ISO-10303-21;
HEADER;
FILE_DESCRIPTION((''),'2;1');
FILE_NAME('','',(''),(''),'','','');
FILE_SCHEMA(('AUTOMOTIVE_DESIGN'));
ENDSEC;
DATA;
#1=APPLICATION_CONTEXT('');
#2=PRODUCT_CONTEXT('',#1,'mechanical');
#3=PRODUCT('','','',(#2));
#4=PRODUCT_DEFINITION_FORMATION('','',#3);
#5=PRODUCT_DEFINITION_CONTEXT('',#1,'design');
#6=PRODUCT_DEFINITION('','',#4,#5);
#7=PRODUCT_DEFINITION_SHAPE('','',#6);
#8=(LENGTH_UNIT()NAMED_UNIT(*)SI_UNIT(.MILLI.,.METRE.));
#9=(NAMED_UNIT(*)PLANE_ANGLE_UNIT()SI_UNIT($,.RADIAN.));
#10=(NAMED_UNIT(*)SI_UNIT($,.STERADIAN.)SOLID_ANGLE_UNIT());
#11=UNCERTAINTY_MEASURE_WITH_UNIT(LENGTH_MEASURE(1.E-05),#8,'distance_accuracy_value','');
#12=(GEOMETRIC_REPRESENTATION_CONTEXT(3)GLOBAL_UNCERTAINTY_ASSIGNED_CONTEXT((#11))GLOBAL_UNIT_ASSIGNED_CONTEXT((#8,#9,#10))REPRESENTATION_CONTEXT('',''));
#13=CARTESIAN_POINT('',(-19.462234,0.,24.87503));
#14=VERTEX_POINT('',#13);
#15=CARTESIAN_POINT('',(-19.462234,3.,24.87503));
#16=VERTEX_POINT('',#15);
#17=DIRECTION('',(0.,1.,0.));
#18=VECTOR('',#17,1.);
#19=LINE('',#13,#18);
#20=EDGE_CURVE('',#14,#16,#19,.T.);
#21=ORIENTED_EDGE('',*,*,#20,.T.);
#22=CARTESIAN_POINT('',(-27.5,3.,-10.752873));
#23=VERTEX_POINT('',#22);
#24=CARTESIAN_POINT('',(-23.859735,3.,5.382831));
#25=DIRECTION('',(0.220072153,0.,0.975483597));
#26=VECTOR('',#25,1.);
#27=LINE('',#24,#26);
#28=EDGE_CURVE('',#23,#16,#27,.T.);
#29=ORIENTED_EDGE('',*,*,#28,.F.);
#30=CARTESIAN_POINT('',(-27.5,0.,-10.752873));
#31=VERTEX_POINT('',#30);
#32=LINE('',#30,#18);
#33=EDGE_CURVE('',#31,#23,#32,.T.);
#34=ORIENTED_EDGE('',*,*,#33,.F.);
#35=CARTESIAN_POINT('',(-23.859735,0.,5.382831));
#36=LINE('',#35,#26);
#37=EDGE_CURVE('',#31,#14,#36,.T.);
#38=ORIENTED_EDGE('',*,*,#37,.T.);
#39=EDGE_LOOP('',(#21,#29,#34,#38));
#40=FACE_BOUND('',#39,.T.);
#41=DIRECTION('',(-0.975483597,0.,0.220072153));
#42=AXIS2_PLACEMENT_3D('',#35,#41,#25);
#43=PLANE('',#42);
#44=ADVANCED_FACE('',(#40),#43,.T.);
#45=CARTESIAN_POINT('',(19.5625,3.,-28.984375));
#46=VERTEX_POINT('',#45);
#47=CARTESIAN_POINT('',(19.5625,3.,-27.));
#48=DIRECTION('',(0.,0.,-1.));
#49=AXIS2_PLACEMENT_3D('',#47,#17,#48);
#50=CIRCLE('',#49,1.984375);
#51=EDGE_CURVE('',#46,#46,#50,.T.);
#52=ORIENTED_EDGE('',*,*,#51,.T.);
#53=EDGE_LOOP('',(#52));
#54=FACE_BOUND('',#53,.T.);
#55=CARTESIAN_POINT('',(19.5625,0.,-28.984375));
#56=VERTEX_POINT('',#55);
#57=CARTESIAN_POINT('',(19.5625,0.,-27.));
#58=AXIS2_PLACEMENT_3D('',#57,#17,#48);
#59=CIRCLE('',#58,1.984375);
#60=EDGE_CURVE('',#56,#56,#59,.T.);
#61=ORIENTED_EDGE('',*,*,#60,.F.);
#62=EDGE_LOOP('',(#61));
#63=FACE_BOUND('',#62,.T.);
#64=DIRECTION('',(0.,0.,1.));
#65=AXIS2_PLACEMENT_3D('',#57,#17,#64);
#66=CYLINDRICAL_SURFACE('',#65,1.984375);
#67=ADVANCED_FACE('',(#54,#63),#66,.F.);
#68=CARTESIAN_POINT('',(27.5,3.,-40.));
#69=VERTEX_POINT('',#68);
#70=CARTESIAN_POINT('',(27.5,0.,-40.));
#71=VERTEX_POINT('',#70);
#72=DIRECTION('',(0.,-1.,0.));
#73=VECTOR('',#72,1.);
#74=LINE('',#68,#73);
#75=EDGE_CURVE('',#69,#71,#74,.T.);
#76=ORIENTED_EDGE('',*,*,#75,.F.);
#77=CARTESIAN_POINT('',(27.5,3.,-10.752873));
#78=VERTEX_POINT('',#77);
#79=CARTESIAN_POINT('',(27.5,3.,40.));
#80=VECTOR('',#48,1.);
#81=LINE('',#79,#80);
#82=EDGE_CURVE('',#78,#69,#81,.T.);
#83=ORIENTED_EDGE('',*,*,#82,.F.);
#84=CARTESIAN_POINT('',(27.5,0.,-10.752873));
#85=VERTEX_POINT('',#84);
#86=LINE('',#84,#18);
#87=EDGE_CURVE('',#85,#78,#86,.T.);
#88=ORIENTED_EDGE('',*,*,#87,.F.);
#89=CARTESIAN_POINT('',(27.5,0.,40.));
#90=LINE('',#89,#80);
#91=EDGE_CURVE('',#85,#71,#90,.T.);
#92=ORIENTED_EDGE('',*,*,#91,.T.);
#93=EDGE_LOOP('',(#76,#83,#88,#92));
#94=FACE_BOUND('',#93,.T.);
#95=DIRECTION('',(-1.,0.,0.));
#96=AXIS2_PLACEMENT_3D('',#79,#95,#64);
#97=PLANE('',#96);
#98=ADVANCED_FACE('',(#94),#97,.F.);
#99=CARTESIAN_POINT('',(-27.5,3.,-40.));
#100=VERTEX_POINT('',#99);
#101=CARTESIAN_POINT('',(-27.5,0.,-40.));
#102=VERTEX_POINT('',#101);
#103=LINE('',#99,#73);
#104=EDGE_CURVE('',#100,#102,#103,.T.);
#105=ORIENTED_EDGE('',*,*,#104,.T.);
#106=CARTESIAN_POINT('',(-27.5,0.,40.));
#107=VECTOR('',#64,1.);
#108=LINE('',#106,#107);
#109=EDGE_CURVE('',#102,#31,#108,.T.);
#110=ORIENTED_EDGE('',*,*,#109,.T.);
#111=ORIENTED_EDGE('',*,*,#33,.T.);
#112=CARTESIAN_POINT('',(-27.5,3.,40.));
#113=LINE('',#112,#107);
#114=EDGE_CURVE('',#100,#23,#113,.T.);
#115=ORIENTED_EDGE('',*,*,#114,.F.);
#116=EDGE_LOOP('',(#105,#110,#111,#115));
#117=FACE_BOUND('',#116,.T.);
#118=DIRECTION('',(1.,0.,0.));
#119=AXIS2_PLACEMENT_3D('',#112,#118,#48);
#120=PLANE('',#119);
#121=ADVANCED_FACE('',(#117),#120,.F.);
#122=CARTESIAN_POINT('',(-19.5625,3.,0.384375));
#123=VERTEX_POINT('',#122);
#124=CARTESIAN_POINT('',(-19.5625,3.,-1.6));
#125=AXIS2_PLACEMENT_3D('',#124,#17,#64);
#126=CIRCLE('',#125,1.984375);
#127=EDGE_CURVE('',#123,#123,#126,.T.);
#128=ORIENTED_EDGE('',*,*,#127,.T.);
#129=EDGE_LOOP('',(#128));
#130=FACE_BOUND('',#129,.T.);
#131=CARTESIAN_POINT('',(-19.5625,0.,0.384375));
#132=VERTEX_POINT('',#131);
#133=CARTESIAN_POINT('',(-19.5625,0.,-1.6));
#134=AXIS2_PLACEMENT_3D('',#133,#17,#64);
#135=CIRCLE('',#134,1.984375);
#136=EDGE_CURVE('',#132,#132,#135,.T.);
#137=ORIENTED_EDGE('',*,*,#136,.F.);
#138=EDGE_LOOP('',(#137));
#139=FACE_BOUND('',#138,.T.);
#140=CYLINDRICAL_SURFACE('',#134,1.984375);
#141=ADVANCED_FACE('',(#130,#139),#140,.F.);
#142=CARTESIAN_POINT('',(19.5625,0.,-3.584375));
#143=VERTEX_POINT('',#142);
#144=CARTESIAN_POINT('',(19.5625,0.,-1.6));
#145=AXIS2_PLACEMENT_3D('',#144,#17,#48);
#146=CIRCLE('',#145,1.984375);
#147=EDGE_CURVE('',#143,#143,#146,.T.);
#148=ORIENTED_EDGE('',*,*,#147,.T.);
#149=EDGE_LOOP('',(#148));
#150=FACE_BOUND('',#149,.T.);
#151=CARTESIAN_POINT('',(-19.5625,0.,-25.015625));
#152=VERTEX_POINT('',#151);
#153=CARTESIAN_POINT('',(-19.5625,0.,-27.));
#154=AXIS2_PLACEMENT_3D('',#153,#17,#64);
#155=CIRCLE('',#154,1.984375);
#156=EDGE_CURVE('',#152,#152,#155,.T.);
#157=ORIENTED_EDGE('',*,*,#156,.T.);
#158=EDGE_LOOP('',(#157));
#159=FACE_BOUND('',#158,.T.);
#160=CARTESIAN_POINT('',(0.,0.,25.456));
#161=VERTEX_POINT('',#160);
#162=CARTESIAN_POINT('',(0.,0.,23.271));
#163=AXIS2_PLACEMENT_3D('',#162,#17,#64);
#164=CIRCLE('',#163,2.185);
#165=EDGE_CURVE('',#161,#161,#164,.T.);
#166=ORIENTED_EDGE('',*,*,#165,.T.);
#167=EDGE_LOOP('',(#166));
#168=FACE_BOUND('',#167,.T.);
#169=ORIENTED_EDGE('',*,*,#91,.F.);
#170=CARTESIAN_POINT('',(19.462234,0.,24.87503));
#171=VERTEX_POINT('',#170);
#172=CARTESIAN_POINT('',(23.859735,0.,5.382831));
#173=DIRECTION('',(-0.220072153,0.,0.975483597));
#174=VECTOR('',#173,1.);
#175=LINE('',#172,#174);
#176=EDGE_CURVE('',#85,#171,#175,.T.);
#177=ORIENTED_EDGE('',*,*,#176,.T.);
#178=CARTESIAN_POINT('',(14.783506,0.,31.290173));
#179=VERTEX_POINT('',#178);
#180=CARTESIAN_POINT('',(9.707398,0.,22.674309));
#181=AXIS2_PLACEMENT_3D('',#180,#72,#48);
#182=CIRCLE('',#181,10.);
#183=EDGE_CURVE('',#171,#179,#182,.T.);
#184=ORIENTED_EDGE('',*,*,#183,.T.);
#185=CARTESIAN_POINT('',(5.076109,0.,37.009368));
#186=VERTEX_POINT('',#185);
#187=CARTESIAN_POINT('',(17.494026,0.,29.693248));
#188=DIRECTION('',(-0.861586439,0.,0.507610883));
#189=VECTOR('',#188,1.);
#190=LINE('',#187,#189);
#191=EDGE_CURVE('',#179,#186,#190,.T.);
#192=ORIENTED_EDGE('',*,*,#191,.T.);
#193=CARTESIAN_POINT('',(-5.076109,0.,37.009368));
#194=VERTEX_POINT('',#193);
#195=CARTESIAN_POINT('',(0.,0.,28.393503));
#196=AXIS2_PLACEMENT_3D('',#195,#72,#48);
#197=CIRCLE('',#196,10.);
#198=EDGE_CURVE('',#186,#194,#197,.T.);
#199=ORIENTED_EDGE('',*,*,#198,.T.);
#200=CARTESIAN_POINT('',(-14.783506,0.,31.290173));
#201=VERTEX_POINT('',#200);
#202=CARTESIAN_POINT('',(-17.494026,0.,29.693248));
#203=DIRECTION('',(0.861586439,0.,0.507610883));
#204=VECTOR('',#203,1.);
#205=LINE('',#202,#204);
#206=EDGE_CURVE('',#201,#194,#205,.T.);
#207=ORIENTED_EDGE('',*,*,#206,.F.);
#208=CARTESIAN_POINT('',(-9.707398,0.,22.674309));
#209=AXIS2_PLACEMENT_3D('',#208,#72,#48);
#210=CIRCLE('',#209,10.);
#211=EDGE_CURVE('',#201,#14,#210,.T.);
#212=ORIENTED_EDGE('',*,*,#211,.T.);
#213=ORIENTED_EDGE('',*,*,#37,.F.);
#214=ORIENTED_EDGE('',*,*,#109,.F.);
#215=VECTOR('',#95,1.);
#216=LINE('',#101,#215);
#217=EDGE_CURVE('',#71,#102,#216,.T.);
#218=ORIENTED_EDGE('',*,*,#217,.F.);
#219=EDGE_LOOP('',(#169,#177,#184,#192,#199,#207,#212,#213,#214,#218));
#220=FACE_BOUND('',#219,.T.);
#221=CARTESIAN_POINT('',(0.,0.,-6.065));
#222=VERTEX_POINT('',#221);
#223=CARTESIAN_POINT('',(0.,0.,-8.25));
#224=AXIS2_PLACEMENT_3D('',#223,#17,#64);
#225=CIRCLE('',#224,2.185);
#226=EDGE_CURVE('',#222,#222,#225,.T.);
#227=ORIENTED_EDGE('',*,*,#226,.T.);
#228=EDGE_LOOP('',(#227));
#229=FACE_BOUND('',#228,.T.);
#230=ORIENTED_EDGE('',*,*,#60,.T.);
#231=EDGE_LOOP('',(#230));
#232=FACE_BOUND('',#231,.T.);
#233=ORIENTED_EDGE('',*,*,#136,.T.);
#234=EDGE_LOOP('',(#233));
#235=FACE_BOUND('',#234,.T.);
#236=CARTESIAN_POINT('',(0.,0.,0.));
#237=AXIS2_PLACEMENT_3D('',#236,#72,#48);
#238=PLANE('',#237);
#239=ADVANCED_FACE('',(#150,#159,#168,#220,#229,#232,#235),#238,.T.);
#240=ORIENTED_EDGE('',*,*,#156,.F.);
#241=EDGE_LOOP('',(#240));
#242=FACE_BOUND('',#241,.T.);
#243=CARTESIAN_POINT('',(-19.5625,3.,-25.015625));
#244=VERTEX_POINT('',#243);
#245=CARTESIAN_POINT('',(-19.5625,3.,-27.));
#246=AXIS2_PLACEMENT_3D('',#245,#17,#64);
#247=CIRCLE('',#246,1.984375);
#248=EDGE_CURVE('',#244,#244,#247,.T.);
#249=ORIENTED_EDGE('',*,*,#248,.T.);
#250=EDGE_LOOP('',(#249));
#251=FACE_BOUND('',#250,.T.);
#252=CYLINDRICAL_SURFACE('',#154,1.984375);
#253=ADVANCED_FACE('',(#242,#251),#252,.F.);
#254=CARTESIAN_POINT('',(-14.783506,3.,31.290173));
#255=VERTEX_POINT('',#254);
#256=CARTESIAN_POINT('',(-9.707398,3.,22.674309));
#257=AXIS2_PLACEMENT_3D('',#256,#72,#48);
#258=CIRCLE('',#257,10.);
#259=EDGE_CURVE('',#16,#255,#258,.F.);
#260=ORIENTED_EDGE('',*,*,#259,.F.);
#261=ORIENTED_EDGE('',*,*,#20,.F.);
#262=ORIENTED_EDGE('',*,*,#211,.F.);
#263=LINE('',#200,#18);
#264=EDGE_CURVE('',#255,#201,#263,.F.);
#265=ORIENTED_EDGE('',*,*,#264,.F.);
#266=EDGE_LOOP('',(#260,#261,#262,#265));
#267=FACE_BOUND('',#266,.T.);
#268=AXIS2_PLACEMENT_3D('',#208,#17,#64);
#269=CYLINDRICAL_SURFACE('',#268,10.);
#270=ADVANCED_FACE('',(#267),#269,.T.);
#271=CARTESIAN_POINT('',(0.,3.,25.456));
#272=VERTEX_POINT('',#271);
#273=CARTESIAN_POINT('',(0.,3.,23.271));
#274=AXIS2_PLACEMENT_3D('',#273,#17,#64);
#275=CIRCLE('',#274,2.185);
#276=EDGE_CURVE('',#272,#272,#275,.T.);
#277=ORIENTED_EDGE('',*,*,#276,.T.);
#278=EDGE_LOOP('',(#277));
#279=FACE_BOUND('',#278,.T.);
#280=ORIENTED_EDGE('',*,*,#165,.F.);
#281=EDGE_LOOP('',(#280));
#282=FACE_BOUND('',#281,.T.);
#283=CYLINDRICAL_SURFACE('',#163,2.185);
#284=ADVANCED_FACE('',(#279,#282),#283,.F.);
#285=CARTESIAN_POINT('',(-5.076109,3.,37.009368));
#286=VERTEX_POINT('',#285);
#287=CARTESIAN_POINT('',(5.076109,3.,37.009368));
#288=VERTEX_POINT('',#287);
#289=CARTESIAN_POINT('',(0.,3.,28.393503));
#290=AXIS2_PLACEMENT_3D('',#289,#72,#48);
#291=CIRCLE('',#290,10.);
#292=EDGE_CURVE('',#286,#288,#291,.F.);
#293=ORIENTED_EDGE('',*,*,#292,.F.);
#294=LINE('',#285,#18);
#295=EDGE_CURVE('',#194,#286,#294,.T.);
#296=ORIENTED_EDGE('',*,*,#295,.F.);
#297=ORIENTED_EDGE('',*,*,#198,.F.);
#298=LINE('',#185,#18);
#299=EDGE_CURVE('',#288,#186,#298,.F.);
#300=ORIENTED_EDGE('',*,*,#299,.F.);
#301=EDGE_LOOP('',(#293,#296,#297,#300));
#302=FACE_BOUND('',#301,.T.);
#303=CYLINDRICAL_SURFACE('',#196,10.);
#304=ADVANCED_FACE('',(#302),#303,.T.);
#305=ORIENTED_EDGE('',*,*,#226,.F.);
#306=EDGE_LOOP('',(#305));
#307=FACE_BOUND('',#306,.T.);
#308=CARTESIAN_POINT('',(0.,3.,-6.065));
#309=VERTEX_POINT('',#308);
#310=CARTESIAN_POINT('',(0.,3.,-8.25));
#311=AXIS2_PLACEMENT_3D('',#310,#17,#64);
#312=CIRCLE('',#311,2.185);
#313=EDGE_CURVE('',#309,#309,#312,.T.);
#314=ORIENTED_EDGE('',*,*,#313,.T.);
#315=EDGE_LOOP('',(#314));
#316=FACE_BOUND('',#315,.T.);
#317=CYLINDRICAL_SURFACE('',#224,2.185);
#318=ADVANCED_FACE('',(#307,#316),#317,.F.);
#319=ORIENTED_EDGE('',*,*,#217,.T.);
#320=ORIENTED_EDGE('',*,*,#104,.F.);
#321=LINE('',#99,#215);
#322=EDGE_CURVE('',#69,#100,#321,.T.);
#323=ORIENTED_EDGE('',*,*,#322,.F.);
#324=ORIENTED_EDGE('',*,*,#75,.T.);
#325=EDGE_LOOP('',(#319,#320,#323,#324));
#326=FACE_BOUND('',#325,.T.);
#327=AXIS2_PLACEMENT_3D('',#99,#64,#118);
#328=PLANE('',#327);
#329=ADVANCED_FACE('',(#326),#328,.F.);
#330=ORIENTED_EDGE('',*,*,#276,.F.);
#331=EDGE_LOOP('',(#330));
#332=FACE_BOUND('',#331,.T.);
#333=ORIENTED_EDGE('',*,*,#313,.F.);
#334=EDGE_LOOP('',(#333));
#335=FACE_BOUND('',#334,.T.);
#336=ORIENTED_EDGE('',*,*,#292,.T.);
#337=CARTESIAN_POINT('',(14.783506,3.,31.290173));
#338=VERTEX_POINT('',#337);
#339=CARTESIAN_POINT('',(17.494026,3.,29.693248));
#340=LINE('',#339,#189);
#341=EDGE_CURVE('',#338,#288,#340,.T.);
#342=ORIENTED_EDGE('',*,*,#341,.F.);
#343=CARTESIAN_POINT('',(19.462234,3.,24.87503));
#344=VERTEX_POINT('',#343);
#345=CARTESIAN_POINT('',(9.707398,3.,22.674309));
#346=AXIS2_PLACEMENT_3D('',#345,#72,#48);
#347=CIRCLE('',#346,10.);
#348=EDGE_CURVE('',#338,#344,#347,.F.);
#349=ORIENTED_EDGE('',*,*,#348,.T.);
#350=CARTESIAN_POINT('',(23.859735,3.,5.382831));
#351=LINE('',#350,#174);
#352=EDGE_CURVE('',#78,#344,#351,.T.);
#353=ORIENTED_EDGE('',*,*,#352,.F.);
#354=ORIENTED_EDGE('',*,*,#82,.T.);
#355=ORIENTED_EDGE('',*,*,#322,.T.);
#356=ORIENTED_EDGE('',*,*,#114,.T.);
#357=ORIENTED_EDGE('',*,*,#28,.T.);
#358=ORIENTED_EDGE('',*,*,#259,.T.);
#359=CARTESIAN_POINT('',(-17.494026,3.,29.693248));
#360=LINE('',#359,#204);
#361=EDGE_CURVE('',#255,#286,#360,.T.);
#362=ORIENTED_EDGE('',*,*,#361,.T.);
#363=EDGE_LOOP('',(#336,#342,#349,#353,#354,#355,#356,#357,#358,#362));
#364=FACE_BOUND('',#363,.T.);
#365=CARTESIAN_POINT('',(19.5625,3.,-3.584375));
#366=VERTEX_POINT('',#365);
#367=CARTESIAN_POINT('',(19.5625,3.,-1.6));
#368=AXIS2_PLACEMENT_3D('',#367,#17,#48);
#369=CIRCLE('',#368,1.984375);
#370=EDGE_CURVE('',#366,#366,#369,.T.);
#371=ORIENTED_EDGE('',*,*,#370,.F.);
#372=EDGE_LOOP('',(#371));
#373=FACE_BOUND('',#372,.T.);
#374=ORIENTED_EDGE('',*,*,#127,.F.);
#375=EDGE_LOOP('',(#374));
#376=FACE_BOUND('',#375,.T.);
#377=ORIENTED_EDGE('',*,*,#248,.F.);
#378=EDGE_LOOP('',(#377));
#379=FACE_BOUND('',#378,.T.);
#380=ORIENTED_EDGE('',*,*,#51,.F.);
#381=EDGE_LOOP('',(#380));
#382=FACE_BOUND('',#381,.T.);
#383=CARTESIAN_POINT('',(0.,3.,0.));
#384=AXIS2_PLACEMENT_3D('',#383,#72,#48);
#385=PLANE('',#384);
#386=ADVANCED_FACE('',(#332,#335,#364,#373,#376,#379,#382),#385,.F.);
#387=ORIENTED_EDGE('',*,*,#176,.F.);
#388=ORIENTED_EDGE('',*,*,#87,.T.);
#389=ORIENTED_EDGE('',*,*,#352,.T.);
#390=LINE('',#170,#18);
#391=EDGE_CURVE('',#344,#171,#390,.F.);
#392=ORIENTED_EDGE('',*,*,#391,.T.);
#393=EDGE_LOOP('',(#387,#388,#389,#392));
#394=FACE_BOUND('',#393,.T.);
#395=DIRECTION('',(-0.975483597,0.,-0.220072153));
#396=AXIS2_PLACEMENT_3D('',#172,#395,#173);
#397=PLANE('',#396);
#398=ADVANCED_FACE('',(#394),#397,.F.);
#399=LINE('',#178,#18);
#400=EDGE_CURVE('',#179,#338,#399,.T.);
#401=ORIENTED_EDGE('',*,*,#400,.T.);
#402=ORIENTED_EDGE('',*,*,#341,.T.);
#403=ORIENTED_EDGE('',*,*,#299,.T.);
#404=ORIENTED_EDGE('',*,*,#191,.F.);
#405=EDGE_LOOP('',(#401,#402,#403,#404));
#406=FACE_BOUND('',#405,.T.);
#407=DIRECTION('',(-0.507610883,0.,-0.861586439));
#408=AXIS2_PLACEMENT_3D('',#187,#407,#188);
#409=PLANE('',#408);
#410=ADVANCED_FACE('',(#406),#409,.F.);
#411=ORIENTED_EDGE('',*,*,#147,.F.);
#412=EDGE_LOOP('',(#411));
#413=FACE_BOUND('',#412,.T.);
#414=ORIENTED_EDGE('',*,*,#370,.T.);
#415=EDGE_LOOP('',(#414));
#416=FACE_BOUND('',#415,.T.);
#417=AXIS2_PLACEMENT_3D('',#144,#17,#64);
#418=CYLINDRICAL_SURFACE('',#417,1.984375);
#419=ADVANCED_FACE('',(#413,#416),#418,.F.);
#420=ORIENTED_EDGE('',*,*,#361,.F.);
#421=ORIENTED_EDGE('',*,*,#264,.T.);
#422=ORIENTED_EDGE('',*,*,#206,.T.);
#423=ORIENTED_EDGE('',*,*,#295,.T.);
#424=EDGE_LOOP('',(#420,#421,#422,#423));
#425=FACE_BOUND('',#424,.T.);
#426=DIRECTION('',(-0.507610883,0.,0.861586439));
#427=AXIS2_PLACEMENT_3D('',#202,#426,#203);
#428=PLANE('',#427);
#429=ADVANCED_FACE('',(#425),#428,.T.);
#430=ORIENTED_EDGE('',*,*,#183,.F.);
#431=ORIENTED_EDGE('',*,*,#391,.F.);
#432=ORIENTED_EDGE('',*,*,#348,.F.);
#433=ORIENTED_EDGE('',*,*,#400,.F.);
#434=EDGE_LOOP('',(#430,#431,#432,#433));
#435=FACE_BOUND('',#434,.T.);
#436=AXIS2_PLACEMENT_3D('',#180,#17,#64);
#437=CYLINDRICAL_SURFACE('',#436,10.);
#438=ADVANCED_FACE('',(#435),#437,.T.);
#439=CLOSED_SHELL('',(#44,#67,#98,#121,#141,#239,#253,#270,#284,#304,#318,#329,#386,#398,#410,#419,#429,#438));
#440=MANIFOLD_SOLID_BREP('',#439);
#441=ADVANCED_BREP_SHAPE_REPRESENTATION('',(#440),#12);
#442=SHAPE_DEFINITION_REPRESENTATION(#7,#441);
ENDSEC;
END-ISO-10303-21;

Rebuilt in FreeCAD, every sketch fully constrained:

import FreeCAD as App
import Part
import Sketcher
Q = App.Units.Quantity


def edges_at(feature, points):
    """Names of the edges that pass closest to the given points."""
    edges = feature.Shape.Edges
    near = lambda p: min(range(len(edges)), key=lambda i: edges[i].distToShape(Part.Vertex(*p))[0])
    return sorted({f"Edge{near(p) + 1}" for p in points})

doc = App.newDocument("Part")
body = doc.addObject("PartDesign::Body", "Body")

# Sketch on XZ plane
sketch1 = body.newObject("Sketcher::SketchObject", "Sketch")
sketch1.AttachmentSupport = (doc.getObject("XZ_Plane"), [""])
sketch1.MapMode = "FlatFace"
sketch1.addGeometry(Part.LineSegment(App.Vector(-28, -40, 0), App.Vector(-28, 40, 0)), False)
sketch1.addGeometry(Part.LineSegment(App.Vector(-28, 40, 0), App.Vector(28, 40, 0)), False)
sketch1.addGeometry(Part.LineSegment(App.Vector(28, 40, 0), App.Vector(28, -40, 0)), False)
sketch1.addGeometry(Part.LineSegment(App.Vector(28, -40, 0), App.Vector(-28, -40, 0)), False)
sketch1.addConstraint(Sketcher.Constraint("Coincident", 0, 2, 1, 1))
sketch1.addConstraint(Sketcher.Constraint("Coincident", 1, 2, 2, 1))
sketch1.addConstraint(Sketcher.Constraint("Coincident", 2, 2, 3, 1))
sketch1.addConstraint(Sketcher.Constraint("Coincident", 3, 2, 0, 1))
sketch1.addConstraint(Sketcher.Constraint("Vertical", 0))
sketch1.addConstraint(Sketcher.Constraint("Horizontal", 1))
sketch1.addConstraint(Sketcher.Constraint("Vertical", 2))
sketch1.addConstraint(Sketcher.Constraint("Horizontal", 3))
sketch1.addConstraint(Sketcher.Constraint("Symmetric", 0, 2, 2, 2, -1, 1))
sketch1.addConstraint(Sketcher.Constraint("DistanceX", 1, 1, 1, 2, Q("55 mm")))
sketch1.addConstraint(Sketcher.Constraint("DistanceY", 0, 1, 0, 2, Q("80 mm")))
pad1 = body.newObject("PartDesign::Pad", "Pad")
pad1.Profile = sketch1
pad1.Length = 3
pad1.Reversed = True

# Sketch on XZ plane
sketch2 = body.newObject("Sketcher::SketchObject", "Sketch001")
sketch2.AttachmentSupport = (doc.getObject("XZ_Plane"), [""])
sketch2.MapMode = "FlatFace"
sketch2.AttachmentOffset = App.Placement(App.Vector(0, 0, -3), App.Rotation())
sketch2.addGeometry(Part.Circle(App.Vector(0, -8.2, 0), App.Vector(0, 0, 1), 2.2), False)
sketch2.addGeometry(Part.Circle(App.Vector(0, 23.3, 0), App.Vector(0, 0, 1), 2.2), False)
sketch2.addGeometry(Part.Circle(App.Vector(-19.6, -27, 0), App.Vector(0, 0, 1), 2), False)
sketch2.addGeometry(Part.Circle(App.Vector(-19.6, -1.6, 0), App.Vector(0, 0, 1), 2), False)
sketch2.addGeometry(Part.Circle(App.Vector(19.6, -27, 0), App.Vector(0, 0, 1), 2), False)
sketch2.addGeometry(Part.Circle(App.Vector(19.6, -1.6, 0), App.Vector(0, 0, 1), 2), False)
sketch2.addConstraint(Sketcher.Constraint("Equal", 0, 1))
sketch2.addConstraint(Sketcher.Constraint("Equal", 2, 3))
sketch2.addConstraint(Sketcher.Constraint("Equal", 3, 4))
sketch2.addConstraint(Sketcher.Constraint("Equal", 4, 5))
sketch2.addConstraint(Sketcher.Constraint("Symmetric", 2, 3, 4, 3, -2))
sketch2.addConstraint(Sketcher.Constraint("Symmetric", 3, 3, 5, 3, -2))
sketch2.addConstraint(Sketcher.Constraint("PointOnObject", 0, 3, -2))
sketch2.addConstraint(Sketcher.Constraint("PointOnObject", 1, 3, -2))
sketch2.addConstraint(Sketcher.Constraint("Vertical", 2, 3, 3, 3))
sketch2.addConstraint(Sketcher.Constraint("Diameter", 0, Q("4.37 mm")))
sketch2.addConstraint(Sketcher.Constraint("DistanceY", 2, 3, -1, 1, Q("27 mm")))
sketch2.addConstraint(Sketcher.Constraint("DistanceY", 3, 3, -1, 1, Q("1.6 mm")))
sketch2.addConstraint(Sketcher.Constraint("Diameter", 2, Q("3.96875 mm")))
sketch2.addConstraint(Sketcher.Constraint("DistanceY", 0, 3, -1, 1, Q("8.25 mm")))
sketch2.addConstraint(Sketcher.Constraint("DistanceY", -1, 1, 1, 3, Q("23.271 mm")))
sketch2.addConstraint(Sketcher.Constraint("DistanceX", 2, 3, 4, 3, Q("39.125 mm")))
pocket1 = body.newObject("PartDesign::Pocket", "Pocket")
pocket1.Profile = sketch2
pocket1.Type = "ThroughAll"
pocket1.Reversed = True

# Sketch on XZ plane
sketch3 = body.newObject("Sketcher::SketchObject", "Sketch002")
sketch3.AttachmentSupport = (doc.getObject("XZ_Plane"), [""])
sketch3.MapMode = "FlatFace"
sketch3.AttachmentOffset = App.Placement(App.Vector(0, 0, -3), App.Rotation())
sketch3.addGeometry(Part.LineSegment(App.Vector(19, 29, 0), App.Vector(0, 40, 0)), False)
sketch3.addGeometry(Part.LineSegment(App.Vector(0, 40, 0), App.Vector(28, 40, 0)), False)
sketch3.addGeometry(Part.LineSegment(App.Vector(28, 40, 0), App.Vector(28, -11, 0)), False)
sketch3.addGeometry(Part.LineSegment(App.Vector(28, -11, 0), App.Vector(19, 29, 0)), False)
sketch3.addConstraint(Sketcher.Constraint("Coincident", 0, 2, 1, 1))
sketch3.addConstraint(Sketcher.Constraint("Coincident", 1, 2, 2, 1))
sketch3.addConstraint(Sketcher.Constraint("Coincident", 2, 2, 3, 1))
sketch3.addConstraint(Sketcher.Constraint("Coincident", 3, 2, 0, 1))
sketch3.addConstraint(Sketcher.Constraint("Horizontal", 1))
sketch3.addConstraint(Sketcher.Constraint("Vertical", 2))
sketch3.addConstraint(Sketcher.Constraint("PointOnObject", 0, 2, -2))
sketch3.addConstraint(Sketcher.Constraint("DistanceX", 1, 1, 1, 2, Q("27.5 mm")))
sketch3.addConstraint(Sketcher.Constraint("DistanceY", -1, 1, 0, 2, Q("40 mm")))
sketch3.addConstraint(Sketcher.Constraint("DistanceY", 2, 2, 2, 1, Q("50.752873 mm")))
sketch3.addConstraint(Sketcher.Constraint("DistanceX", -1, 1, 3, 2, Q("18.510309 mm")))
sketch3.addConstraint(Sketcher.Constraint("DistanceY", 2, 2, 3, 2, Q("39.847369 mm")))
pocket2 = body.newObject("PartDesign::Pocket", "Pocket001")
pocket2.Profile = sketch3
pocket2.Type = "ThroughAll"
pocket2.Reversed = True
doc.recompute()

mirrored = body.newObject("PartDesign::Mirrored", "Mirrored")
mirrored.Originals = [pocket2]
mirrored.MirrorPlane = (doc.getObject("YZ_Plane"), [""])
body.Tip = mirrored
doc.recompute()

fillet = body.newObject("PartDesign::Fillet", "Fillet")
fillet.Base = (mirrored, edges_at(mirrored, [(18.51, 1.5, 29.094), (0, 1.5, 40), (-18.51, 1.5, 29.094)]))
fillet.Radius = 10

doc.recompute()
